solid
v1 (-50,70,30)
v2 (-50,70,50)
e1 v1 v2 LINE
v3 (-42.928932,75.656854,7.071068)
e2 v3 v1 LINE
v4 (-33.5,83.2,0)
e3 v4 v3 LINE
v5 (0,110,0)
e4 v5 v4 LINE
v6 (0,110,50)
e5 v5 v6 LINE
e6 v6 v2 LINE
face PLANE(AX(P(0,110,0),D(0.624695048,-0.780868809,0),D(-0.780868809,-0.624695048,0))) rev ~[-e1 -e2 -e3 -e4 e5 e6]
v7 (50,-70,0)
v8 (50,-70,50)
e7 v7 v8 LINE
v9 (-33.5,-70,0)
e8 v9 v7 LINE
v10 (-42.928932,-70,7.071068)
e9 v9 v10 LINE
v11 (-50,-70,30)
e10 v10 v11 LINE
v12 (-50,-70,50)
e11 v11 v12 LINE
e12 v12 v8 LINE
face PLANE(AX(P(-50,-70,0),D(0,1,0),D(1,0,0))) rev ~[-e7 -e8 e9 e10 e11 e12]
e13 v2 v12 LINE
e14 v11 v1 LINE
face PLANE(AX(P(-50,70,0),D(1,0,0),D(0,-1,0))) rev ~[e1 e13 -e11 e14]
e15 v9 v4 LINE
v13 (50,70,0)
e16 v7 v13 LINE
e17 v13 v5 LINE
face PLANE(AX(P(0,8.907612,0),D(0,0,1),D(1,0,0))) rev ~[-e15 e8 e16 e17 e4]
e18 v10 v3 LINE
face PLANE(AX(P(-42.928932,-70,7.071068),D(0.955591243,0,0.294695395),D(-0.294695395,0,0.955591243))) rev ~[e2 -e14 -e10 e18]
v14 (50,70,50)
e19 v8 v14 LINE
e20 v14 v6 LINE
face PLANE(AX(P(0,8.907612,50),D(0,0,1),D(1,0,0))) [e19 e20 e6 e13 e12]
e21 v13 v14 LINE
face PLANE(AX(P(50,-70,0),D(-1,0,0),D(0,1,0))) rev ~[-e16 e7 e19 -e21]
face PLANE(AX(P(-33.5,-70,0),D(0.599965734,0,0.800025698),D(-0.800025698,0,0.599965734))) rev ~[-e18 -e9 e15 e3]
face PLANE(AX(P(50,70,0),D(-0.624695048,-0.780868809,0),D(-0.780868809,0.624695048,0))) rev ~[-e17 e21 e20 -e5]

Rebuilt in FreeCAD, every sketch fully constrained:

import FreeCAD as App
import Part
import Sketcher

V = App.Vector
Q = App.Units.Quantity

doc = App.newDocument("Part")
body = doc.addObject("PartDesign::Body", "Body")

sketch1 = body.newObject("Sketcher::SketchObject", "Sketch")
sketch1.AttachmentSupport = (doc.getObject("XY_Plane"), [""])
sketch1.MapMode = "FlatFace"
sketch1.addGeometry(Part.LineSegment(V(-50, -70, 0), V(50, -70, 0)), False)
sketch1.addGeometry(Part.LineSegment(V(50, -70, 0), V(50, 70, 0)), False)
sketch1.addGeometry(Part.LineSegment(V(50, 70, 0), V(0, 110, 0)), False)
sketch1.addGeometry(Part.LineSegment(V(0, 110, 0), V(-50, 70, 0)), False)
sketch1.addGeometry(Part.LineSegment(V(-50, 70, 0), V(-50, -70, 0)), False)
sketch1.addConstraint(Sketcher.Constraint("Coincident", 0, 2, 1, 1))
sketch1.addConstraint(Sketcher.Constraint("Coincident", 1, 2, 2, 1))
sketch1.addConstraint(Sketcher.Constraint("Coincident", 2, 2, 3, 1))
sketch1.addConstraint(Sketcher.Constraint("Coincident", 3, 2, 4, 1))
sketch1.addConstraint(Sketcher.Constraint("Coincident", 4, 2, 0, 1))
sketch1.addConstraint(Sketcher.Constraint("Horizontal", 0))
sketch1.addConstraint(Sketcher.Constraint("Vertical", 1))
sketch1.addConstraint(Sketcher.Constraint("Vertical", 4))
sketch1.addConstraint(Sketcher.Constraint("Symmetric", 0, 2, 3, 2, -1, 1))
sketch1.addConstraint(Sketcher.Constraint("PointOnObject", 2, 2, -2))
sketch1.addConstraint(Sketcher.Constraint("Horizontal", 1, 2, 3, 2))
sketch1.addConstraint(Sketcher.Constraint("DistanceX", 0, 1, 0, 2, Q("100 mm")))
sketch1.addConstraint(Sketcher.Constraint("DistanceY", 1, 1, 1, 2, Q("140 mm")))
sketch1.addConstraint(Sketcher.Constraint("DistanceY", -1, 1, 2, 2, Q("110 mm")))
pad1 = body.newObject("PartDesign::Pad", "Pad")
pad1.Profile = sketch1
pad1.Length = 50

sketch2 = body.newObject("Sketcher::SketchObject", "Sketch001")
sketch2.AttachmentSupport = (doc.getObject("XZ_Plane"), [""])
sketch2.MapMode = "FlatFace"
sketch2.AttachmentOffset = App.Placement(V(0, 0, 70), App.Rotation())
sketch2.addGeometry(Part.LineSegment(V(-50, 0, 0), V(-34, 0, 0)), False)
sketch2.addGeometry(Part.LineSegment(V(-34, 0, 0), V(-43, 7, 0)), False)
sketch2.addGeometry(Part.LineSegment(V(-43, 7, 0), V(-50, 30, 0)), False)
sketch2.addGeometry(Part.LineSegment(V(-50, 30, 0), V(-50, 0, 0)), False)
sketch2.addConstraint(Sketcher.Constraint("Coincident", 0, 2, 1, 1))
sketch2.addConstraint(Sketcher.Constraint("Coincident", 1, 2, 2, 1))
sketch2.addConstraint(Sketcher.Constraint("Coincident", 2, 2, 3, 1))
sketch2.addConstraint(Sketcher.Constraint("Coincident", 3, 2, 0, 1))
sketch2.addConstraint(Sketcher.Constraint("Horizontal", 0))
sketch2.addConstraint(Sketcher.Constraint("Vertical", 3))
sketch2.addConstraint(Sketcher.Constraint("PointOnObject", 0, 2, -1))
sketch2.addConstraint(Sketcher.Constraint("DistanceY", 3, 2, 3, 1, Q("30 mm")))
sketch2.addConstraint(Sketcher.Constraint("DistanceX", 0, 1, 0, 2, Q("16.5 mm")))
sketch2.addConstraint(Sketcher.Constraint("DistanceX", 2, 2, -1, 1, Q("50 mm")))
sketch2.addConstraint(Sketcher.Constraint("DistanceY", -1, 1, 1, 2, Q("7.071068 mm")))
sketch2.addConstraint(Sketcher.Constraint("Distance", 1, Q("11.785786 mm")))
pocket1 = body.newObject("PartDesign::Pocket", "Pocket")
pocket1.Profile = sketch2
pocket1.Length = 180

doc.recompute()
